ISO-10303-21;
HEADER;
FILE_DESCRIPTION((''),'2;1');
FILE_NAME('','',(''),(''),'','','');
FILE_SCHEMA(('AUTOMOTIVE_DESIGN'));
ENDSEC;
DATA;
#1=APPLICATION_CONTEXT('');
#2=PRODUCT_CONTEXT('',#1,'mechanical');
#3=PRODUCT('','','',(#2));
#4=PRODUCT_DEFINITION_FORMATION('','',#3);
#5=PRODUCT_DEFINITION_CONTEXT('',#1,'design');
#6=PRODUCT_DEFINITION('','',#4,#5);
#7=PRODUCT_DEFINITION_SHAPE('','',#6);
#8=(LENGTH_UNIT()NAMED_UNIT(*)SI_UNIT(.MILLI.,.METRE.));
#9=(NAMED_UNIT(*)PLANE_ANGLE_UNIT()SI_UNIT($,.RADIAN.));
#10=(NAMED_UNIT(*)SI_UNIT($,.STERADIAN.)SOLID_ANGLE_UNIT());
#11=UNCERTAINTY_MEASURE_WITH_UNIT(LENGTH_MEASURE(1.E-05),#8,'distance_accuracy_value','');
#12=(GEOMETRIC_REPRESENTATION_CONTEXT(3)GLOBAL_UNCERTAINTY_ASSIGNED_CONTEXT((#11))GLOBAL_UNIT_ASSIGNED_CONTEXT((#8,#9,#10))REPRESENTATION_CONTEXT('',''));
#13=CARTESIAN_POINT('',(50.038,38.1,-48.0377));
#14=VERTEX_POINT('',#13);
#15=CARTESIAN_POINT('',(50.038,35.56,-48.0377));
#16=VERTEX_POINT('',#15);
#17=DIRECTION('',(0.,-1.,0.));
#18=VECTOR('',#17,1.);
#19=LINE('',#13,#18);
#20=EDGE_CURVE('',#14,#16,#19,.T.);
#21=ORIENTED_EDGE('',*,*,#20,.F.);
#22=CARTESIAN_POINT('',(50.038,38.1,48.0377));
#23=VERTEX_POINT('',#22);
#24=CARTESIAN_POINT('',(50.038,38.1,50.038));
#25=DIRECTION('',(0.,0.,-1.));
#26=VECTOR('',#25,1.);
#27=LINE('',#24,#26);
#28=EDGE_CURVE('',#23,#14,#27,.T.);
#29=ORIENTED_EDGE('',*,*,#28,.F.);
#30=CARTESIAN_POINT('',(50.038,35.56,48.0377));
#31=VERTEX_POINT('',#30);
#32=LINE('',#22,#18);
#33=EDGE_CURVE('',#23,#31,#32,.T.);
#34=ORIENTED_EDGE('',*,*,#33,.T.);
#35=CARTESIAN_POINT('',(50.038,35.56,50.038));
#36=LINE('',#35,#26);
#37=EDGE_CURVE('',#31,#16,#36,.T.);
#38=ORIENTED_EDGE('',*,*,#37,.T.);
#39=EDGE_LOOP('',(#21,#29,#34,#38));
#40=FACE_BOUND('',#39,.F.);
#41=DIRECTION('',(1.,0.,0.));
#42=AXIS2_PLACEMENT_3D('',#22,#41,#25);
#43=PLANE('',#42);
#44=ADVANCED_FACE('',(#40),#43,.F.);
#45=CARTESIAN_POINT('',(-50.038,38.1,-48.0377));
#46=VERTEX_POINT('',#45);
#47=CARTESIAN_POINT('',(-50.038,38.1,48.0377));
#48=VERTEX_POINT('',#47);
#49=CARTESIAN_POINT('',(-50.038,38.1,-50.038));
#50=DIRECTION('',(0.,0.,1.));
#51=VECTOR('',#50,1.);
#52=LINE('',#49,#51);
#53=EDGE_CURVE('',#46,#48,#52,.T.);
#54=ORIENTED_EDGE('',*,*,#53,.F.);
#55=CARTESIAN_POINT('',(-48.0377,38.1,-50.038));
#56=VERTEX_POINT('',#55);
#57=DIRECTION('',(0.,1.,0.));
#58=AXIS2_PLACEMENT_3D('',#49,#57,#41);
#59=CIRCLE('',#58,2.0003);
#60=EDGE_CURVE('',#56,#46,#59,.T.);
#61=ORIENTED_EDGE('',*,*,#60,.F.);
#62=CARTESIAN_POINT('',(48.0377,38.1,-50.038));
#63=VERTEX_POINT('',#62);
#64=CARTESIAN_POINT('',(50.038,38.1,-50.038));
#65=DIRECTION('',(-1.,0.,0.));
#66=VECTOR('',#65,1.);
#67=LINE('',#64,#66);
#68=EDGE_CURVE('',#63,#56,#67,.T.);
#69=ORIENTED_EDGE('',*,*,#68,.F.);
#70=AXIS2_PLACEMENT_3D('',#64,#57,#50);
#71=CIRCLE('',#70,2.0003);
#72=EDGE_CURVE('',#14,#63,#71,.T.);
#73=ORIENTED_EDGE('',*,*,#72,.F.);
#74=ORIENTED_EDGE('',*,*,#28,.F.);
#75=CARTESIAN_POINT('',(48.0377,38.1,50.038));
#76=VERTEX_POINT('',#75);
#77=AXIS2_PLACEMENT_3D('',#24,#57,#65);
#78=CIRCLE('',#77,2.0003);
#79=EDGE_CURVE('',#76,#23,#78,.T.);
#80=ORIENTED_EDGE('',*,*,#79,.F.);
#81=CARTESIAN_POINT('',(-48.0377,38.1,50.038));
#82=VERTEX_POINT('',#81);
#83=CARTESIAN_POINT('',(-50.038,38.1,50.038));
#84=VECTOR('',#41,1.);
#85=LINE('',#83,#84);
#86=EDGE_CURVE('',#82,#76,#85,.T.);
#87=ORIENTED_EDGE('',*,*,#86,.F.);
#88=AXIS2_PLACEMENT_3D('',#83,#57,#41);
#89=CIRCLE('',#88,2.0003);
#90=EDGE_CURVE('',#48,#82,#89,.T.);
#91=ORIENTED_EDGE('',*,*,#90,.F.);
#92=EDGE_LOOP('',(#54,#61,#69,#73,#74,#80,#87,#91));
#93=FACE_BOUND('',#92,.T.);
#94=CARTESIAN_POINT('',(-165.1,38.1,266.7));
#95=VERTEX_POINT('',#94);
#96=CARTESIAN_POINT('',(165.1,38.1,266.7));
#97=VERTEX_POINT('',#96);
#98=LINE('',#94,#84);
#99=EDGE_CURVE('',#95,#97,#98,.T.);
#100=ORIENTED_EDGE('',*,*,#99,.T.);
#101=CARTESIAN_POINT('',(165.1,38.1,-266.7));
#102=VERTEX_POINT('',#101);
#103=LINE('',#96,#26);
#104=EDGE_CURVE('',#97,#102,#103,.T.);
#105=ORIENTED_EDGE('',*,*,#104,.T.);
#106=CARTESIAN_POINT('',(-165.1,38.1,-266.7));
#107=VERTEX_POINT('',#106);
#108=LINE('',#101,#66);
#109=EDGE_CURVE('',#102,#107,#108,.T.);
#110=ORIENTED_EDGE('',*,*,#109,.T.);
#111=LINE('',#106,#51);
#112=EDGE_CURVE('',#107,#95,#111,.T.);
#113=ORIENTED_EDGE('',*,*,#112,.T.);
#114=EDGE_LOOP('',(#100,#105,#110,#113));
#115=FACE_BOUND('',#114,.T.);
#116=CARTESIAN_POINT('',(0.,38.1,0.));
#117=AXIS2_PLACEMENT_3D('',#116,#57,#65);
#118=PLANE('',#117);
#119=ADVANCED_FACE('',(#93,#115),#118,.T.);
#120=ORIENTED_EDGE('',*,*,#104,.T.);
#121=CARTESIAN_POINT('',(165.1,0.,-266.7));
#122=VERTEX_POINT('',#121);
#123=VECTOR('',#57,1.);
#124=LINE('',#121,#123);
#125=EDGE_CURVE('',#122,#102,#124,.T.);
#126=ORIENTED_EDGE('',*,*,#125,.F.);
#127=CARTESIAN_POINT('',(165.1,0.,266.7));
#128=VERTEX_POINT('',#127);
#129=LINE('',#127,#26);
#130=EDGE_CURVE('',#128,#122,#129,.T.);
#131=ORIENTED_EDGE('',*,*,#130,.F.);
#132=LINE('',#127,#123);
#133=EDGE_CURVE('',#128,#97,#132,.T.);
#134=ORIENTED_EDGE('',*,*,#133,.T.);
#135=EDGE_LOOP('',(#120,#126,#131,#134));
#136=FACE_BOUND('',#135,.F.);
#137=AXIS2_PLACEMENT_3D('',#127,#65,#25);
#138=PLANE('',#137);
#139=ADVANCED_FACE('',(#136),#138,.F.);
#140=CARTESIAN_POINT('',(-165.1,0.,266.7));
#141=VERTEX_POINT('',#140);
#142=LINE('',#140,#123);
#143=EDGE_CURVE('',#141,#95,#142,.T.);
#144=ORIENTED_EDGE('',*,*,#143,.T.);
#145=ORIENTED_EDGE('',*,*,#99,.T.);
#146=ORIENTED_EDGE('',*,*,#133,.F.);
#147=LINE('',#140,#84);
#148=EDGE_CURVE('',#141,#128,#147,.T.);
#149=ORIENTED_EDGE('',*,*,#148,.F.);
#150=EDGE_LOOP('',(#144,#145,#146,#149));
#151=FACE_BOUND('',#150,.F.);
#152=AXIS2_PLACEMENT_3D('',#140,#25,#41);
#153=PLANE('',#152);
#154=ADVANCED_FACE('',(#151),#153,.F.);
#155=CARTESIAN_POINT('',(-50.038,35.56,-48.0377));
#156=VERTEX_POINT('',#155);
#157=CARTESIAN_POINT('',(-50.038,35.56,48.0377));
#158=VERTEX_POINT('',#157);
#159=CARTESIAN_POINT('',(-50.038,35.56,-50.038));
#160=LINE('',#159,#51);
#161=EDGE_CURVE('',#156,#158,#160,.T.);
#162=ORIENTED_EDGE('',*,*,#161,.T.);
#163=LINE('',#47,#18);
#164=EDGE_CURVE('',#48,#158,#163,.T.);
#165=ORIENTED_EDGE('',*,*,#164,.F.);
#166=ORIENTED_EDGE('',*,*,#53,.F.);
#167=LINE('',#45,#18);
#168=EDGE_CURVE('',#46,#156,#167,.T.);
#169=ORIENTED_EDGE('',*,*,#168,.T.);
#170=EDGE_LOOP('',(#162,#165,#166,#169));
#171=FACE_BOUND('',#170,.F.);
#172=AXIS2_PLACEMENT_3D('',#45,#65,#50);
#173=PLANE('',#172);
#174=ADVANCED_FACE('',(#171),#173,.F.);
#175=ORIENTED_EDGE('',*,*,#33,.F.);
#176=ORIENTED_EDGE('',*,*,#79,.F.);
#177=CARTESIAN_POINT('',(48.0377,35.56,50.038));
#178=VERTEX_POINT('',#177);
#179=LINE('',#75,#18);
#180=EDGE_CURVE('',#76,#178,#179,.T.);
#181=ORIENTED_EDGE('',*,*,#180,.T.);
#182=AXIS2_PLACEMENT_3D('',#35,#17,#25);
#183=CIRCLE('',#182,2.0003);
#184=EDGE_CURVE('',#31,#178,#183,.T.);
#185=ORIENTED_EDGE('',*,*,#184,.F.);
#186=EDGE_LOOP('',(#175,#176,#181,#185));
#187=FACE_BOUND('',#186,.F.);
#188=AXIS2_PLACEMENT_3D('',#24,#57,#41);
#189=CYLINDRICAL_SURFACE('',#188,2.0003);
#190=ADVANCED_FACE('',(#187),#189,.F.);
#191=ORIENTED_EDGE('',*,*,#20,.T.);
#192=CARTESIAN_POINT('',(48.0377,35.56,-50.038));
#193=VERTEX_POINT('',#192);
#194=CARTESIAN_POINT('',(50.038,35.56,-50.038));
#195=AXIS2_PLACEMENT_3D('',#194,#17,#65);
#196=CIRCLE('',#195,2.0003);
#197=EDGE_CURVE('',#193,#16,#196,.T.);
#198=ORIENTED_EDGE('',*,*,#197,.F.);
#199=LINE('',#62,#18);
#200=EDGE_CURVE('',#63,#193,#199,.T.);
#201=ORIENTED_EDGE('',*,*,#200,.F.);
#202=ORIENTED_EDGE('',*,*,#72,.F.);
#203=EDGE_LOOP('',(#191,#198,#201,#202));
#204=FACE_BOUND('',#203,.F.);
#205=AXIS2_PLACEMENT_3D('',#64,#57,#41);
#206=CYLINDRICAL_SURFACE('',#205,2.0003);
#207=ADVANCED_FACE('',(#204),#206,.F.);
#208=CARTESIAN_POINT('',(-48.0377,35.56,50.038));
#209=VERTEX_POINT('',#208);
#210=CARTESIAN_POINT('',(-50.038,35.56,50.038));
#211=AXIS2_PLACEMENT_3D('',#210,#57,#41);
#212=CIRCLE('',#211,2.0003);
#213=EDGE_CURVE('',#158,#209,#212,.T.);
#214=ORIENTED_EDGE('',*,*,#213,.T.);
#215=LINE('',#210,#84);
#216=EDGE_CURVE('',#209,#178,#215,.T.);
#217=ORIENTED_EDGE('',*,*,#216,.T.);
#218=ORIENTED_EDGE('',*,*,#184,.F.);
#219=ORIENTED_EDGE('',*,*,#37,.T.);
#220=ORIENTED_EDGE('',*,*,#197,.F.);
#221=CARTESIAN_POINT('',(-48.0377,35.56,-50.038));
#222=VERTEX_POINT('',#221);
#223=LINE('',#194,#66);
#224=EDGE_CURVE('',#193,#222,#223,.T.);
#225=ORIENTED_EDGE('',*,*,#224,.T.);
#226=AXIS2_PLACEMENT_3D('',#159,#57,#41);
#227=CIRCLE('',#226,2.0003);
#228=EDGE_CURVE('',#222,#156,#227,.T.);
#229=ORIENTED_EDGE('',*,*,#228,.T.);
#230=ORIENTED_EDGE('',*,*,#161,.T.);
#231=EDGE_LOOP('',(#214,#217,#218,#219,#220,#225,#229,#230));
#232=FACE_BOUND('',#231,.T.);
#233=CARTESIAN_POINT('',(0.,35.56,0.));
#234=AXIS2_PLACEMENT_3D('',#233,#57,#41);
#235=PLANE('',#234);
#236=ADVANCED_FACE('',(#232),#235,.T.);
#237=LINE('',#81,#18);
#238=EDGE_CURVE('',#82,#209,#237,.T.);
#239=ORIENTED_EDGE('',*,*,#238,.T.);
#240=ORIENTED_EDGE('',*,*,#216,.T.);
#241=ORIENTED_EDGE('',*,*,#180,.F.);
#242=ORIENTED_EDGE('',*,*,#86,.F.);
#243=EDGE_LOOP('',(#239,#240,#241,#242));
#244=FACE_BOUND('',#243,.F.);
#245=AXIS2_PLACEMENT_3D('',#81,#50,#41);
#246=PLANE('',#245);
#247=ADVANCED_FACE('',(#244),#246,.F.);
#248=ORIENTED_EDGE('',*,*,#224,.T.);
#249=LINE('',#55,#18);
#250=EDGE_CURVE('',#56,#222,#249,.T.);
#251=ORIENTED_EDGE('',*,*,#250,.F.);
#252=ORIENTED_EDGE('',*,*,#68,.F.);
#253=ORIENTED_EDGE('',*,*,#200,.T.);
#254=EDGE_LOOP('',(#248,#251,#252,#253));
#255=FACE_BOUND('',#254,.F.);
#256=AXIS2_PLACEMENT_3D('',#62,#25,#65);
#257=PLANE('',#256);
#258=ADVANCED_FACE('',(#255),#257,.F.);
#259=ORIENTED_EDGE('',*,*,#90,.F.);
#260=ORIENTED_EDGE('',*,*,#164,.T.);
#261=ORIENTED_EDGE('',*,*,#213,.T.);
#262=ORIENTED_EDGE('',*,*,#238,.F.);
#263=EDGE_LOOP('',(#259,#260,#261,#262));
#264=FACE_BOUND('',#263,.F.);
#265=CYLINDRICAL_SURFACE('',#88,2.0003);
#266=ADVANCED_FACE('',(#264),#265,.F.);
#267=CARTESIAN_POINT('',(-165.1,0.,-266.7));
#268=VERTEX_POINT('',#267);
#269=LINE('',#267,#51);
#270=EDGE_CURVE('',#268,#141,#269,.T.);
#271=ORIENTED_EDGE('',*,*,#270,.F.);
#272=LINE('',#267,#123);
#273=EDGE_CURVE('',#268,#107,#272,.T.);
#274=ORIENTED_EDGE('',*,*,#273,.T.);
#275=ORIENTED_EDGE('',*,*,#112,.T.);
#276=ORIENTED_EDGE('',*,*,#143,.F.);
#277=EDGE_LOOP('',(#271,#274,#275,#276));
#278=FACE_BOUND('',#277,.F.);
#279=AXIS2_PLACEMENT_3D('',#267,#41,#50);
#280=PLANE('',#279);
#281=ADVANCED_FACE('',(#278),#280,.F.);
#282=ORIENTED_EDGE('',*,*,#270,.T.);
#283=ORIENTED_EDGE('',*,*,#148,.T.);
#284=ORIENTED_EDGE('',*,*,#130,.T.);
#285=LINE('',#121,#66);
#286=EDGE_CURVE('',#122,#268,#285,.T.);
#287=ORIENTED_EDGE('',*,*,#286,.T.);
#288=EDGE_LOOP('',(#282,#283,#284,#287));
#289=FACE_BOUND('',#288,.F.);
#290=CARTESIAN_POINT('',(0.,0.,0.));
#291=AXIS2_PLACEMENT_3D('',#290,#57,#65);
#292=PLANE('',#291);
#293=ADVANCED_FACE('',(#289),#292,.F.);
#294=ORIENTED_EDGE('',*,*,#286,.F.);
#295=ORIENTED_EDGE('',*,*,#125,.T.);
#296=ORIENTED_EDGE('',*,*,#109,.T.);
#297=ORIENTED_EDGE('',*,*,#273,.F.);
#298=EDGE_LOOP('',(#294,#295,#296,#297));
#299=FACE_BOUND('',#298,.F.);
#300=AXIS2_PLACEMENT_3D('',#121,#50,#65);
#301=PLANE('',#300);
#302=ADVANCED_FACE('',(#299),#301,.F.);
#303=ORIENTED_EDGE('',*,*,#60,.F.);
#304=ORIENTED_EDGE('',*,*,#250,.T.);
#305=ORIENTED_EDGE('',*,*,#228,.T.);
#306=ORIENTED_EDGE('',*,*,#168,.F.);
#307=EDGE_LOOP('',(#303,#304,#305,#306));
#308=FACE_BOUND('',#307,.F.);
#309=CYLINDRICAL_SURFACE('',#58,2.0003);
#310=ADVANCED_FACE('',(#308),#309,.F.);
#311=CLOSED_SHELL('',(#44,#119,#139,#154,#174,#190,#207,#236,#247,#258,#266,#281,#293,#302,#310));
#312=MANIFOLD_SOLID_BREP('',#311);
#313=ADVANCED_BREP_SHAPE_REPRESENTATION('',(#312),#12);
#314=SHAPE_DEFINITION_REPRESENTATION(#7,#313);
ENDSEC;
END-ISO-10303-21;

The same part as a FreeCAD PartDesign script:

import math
import FreeCAD as App
import Part
import Sketcher
Q = App.Units.Quantity


def add_polygon(sketch, points):
    """Adds a closed chain of lines whose ends are joined by coincident constraints."""
    first, n = sketch.GeometryCount, len(points)
    for a, b in zip(points, points[1:] + points[:1]):
        sketch.addGeometry(Part.LineSegment(App.Vector(*a, 0), App.Vector(*b, 0)), False)
    for i in range(n):
        sketch.addConstraint(Sketcher.Constraint("Coincident", first + i, 2, first + (i + 1) % n, 1))

doc = App.newDocument("Part")
params = doc.addObject("Spreadsheet::Sheet", "Params")
for row, (alias, value) in enumerate([
    ("sketch1_width", "13 in"),
    ("sketch1_height", "21 in"),
    ("pad1_length", "1.5 in"),
    ("pocket1_length", "0.1 in"),
], start=1):
    params.set(f"A{row}", alias)
    params.set(f"B{row}", "=" + value)
    params.setAlias(f"B{row}", alias)

body = doc.addObject("PartDesign::Body", "Body")

sketch1 = body.newObject("Sketcher::SketchObject", "Sketch")
sketch1.AttachmentSupport = (doc.getObject("XZ_Plane"), [""])
sketch1.MapMode = "FlatFace"
add_polygon(sketch1, [(-165, -267), (-165, 267), (165, 267), (165, -267)])
sketch1.addConstraint(Sketcher.Constraint("Vertical", 0))
sketch1.addConstraint(Sketcher.Constraint("Horizontal", 1))
sketch1.addConstraint(Sketcher.Constraint("Vertical", 2))
sketch1.addConstraint(Sketcher.Constraint("Horizontal", 3))
sketch1.addConstraint(Sketcher.Constraint("Symmetric", 0, 2, 2, 2, -1, 1))
sketch1.addConstraint(Sketcher.Constraint("DistanceX", 1, 1, 1, 2, Q("13 in")))
sketch1.addConstraint(Sketcher.Constraint("DistanceY", 0, 1, 0, 2, Q("21 in")))
sketch1.setExpression("Constraints[9]", "Params.sketch1_width")
sketch1.setExpression("Constraints[10]", "Params.sketch1_height")
pad1 = body.newObject("PartDesign::Pad", "Pad")
pad1.Profile = sketch1
pad1.setExpression("Length", "Params.pad1_length")
pad1.Reversed = True

sketch2 = body.newObject("Sketcher::SketchObject", "Sketch001")
sketch2.AttachmentSupport = (doc.getObject("XZ_Plane"), [""])
sketch2.MapMode = "FlatFace"
sketch2.AttachmentOffset = App.Placement(App.Vector(0, 0, -1.5 * 25.4), App.Rotation())
sketch2.addGeometry(Part.ArcOfCircle(Part.Circle(App.Vector(-50, 50, 0), App.Vector(0, 0, 1), 2), math.radians(0), math.radians(270)), False)
sketch2.addGeometry(Part.LineSegment(App.Vector(-48, 50, 0), App.Vector(48, 50, 0)), False)
sketch2.addGeometry(Part.ArcOfCircle(Part.Circle(App.Vector(50, 50, 0), App.Vector(0, 0, 1), 2), math.radians(-90), math.radians(180)), False)
sketch2.addGeometry(Part.LineSegment(App.Vector(50, 48, 0), App.Vector(50, -48, 0)), False)
sketch2.addGeometry(Part.ArcOfCircle(Part.Circle(App.Vector(50, -50, 0), App.Vector(0, 0, 1), 2), math.radians(180), math.radians(450)), False)
sketch2.addGeometry(Part.LineSegment(App.Vector(48, -50, 0), App.Vector(-48, -50, 0)), False)
sketch2.addGeometry(Part.ArcOfCircle(Part.Circle(App.Vector(-50, -50, 0), App.Vector(0, 0, 1), 2), math.radians(90), math.radians(360)), False)
sketch2.addGeometry(Part.LineSegment(App.Vector(-50, -48, 0), App.Vector(-50, 48, 0)), False)
sketch2.addConstraint(Sketcher.Constraint("Coincident", 0, 1, 1, 1))
sketch2.addConstraint(Sketcher.Constraint("Coincident", 1, 2, 2, 2))
sketch2.addConstraint(Sketcher.Constraint("Coincident", 2, 1, 3, 1))
sketch2.addConstraint(Sketcher.Constraint("Coincident", 3, 2, 4, 2))
sketch2.addConstraint(Sketcher.Constraint("Coincident", 4, 1, 5, 1))
sketch2.addConstraint(Sketcher.Constraint("Coincident", 5, 2, 6, 2))
sketch2.addConstraint(Sketcher.Constraint("Coincident", 6, 1, 7, 1))
sketch2.addConstraint(Sketcher.Constraint("Coincident", 7, 2, 0, 2))
sketch2.addConstraint(Sketcher.Constraint("Horizontal", 1))
sketch2.addConstraint(Sketcher.Constraint("Vertical", 3))
sketch2.addConstraint(Sketcher.Constraint("Horizontal", 5))
sketch2.addConstraint(Sketcher.Constraint("Vertical", 7))
sketch2.addConstraint(Sketcher.Constraint("Equal", 0, 2))
sketch2.addConstraint(Sketcher.Constraint("Equal", 2, 4))
sketch2.addConstraint(Sketcher.Constraint("Equal", 4, 6))
sketch2.addConstraint(Sketcher.Constraint("Symmetric", 0, 3, 4, 3, -1, 1))
sketch2.addConstraint(Sketcher.Constraint("Symmetric", 2, 3, 6, 3, -1, 1))
sketch2.addConstraint(Sketcher.Constraint("Symmetric", 0, 3, 2, 3, -2))
sketch2.addConstraint(Sketcher.Constraint("Horizontal", 2, 3, 0, 1))
sketch2.addConstraint(Sketcher.Constraint("Horizontal", 6, 3, 4, 1))
sketch2.addConstraint(Sketcher.Constraint("Vertical", 4, 3, 2, 1))
sketch2.addConstraint(Sketcher.Constraint("Vertical", 0, 3, 6, 1))
sketch2.addConstraint(Sketcher.Constraint("Equal", 5, 3))
sketch2.addConstraint(Sketcher.Constraint("Radius", 0, 2.0003))
sketch2.addConstraint(Sketcher.Constraint("DistanceX", 0, 3, 2, 3, Q("3.94 in")))
pocket1 = body.newObject("PartDesign::Pocket", "Pocket")
pocket1.Profile = sketch2
pocket1.setExpression("Length", "Params.pocket1_length")
pocket1.Reversed = True

doc.recompute()
